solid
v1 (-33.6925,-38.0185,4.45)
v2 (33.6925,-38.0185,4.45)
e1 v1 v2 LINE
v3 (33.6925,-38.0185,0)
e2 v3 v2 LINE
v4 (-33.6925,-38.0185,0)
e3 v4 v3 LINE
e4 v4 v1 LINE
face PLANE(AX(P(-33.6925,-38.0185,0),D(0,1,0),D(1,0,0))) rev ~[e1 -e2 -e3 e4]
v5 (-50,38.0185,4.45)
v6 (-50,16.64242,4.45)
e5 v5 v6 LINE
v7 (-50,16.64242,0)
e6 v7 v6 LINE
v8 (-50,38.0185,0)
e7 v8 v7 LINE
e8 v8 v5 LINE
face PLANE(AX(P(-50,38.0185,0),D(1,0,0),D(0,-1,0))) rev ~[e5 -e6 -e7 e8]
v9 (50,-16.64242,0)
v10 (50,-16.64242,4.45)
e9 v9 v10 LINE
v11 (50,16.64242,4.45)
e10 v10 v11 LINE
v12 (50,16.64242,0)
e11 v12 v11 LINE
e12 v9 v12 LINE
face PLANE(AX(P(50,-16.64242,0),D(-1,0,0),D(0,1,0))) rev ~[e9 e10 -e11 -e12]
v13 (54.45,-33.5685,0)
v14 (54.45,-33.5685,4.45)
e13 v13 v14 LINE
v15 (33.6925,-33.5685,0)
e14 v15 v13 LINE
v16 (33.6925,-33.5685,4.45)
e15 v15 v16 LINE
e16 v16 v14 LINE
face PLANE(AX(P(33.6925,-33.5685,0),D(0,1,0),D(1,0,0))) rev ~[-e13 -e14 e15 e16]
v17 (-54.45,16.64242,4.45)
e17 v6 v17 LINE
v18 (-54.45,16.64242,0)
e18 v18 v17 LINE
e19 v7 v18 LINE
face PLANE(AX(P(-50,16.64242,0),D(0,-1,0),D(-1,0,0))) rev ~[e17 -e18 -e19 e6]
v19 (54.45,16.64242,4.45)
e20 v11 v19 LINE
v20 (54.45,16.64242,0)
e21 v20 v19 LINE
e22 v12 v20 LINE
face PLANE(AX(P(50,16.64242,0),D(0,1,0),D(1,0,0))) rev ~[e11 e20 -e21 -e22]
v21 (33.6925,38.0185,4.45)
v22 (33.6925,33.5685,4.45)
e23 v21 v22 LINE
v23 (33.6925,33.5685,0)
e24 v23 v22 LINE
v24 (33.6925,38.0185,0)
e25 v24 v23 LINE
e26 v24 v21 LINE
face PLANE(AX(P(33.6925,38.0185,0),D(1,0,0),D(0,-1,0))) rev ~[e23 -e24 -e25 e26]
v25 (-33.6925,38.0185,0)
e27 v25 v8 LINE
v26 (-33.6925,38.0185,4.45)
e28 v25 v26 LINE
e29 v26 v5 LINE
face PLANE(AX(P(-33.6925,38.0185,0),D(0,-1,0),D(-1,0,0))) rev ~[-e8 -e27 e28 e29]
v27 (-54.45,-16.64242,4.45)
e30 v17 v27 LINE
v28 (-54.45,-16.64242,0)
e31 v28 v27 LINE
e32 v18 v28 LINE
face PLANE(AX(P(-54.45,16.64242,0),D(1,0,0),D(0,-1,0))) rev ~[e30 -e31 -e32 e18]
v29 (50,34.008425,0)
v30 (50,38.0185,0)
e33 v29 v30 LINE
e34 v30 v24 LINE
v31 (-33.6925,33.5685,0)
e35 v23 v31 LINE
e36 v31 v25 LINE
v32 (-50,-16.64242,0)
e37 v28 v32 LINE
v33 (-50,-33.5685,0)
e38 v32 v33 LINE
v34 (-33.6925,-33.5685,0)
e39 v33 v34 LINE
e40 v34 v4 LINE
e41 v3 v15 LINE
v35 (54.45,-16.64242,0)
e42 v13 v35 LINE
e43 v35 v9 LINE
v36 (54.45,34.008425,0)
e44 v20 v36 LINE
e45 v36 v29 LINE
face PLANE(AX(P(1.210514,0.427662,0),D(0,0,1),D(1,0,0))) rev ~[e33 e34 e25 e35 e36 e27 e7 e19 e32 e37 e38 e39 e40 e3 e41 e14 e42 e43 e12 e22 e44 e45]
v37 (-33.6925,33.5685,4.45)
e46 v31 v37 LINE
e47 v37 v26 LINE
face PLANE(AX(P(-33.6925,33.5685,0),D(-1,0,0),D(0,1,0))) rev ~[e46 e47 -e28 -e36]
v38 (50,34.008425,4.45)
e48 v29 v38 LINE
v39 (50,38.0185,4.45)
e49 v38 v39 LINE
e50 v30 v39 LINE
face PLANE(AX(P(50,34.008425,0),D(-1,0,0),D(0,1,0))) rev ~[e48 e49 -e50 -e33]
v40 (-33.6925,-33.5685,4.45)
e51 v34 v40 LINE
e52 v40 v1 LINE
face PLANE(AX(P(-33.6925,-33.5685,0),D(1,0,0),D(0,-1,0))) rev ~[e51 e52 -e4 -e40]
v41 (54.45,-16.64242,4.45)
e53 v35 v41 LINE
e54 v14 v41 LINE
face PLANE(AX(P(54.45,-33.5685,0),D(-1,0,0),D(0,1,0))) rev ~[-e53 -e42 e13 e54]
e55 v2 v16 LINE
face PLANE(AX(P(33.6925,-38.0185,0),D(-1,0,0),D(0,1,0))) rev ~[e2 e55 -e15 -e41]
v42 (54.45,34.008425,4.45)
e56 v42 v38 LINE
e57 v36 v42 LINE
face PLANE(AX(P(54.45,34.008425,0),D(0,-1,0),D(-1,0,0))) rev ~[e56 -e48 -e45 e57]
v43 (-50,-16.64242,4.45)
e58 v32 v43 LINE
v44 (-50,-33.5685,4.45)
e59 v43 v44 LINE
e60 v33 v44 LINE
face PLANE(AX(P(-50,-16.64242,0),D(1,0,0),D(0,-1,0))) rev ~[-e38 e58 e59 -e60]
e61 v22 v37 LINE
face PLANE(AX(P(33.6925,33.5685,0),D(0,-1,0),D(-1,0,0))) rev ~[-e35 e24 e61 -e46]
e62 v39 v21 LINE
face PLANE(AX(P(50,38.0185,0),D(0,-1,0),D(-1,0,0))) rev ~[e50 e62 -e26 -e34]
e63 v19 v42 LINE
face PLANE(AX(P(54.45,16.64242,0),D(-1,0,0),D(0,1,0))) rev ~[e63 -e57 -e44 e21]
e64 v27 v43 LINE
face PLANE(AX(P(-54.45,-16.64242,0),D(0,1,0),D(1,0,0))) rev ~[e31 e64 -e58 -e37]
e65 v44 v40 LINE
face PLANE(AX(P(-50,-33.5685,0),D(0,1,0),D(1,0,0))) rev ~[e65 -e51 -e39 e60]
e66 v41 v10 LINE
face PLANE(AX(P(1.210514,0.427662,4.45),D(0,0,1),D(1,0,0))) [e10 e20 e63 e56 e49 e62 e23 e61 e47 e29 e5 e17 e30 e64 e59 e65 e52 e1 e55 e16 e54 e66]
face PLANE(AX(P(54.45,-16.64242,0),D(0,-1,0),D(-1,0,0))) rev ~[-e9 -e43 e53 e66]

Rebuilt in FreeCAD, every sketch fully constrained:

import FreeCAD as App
import Part
import Sketcher

V = App.Vector
Q = App.Units.Quantity

doc = App.newDocument("Part")
body = doc.addObject("PartDesign::Body", "Body")

# Sketch on XY plane
sketch1 = body.newObject("Sketcher::SketchObject", "Sketch")
sketch1.AttachmentSupport = (doc.getObject("XY_Plane"), [""])
sketch1.MapMode = "FlatFace"
sketch1.addGeometry([
    Part.LineSegment(V(33.7, -33.6, 0), V(54.5, -33.6, 0)),  # 0
    Part.LineSegment(V(54.5, -33.6, 0), V(54.5, -16.6, 0)),  # 1
    Part.LineSegment(V(54.5, -16.6, 0), V(50, -16.6, 0)),  # 2
    Part.LineSegment(V(50, -16.6, 0), V(50, 16.6, 0)),  # 3
    Part.LineSegment(V(50, 16.6, 0), V(54.5, 16.6, 0)),  # 4
    Part.LineSegment(V(54.5, 16.6, 0), V(54.5, 34, 0)),  # 5
    Part.LineSegment(V(54.5, 34, 0), V(50, 34, 0)),  # 6
    Part.LineSegment(V(50, 34, 0), V(50, 38, 0)),  # 7
    Part.LineSegment(V(50, 38, 0), V(33.7, 38, 0)),  # 8
    Part.LineSegment(V(33.7, 38, 0), V(33.7, 33.6, 0)),  # 9
    Part.LineSegment(V(33.7, 33.6, 0), V(-33.7, 33.6, 0)),  # 10
    Part.LineSegment(V(-33.7, 33.6, 0), V(-33.7, 38, 0)),  # 11
    Part.LineSegment(V(-33.7, 38, 0), V(-50, 38, 0)),  # 12
    Part.LineSegment(V(-50, 38, 0), V(-50, 16.6, 0)),  # 13
    Part.LineSegment(V(-50, 16.6, 0), V(-54.5, 16.6, 0)),  # 14
    Part.LineSegment(V(-54.5, 16.6, 0), V(-54.5, -16.6, 0)),  # 15
    Part.LineSegment(V(-54.5, -16.6, 0), V(-50, -16.6, 0)),  # 16
    Part.LineSegment(V(-50, -16.6, 0), V(-50, -33.6, 0)),  # 17
    Part.LineSegment(V(-50, -33.6, 0), V(-33.7, -33.6, 0)),  # 18
    Part.LineSegment(V(-33.7, -33.6, 0), V(-33.7, -38, 0)),  # 19
    Part.LineSegment(V(-33.7, -38, 0), V(33.7, -38, 0)),  # 20
    Part.LineSegment(V(33.7, -38, 0), V(33.7, -33.6, 0)),  # 21
], False)
sketch1.addConstraint([
    Sketcher.Constraint("Coincident", 0, 2, 1, 1),
    Sketcher.Constraint("Coincident", 1, 2, 2, 1),
    Sketcher.Constraint("Coincident", 2, 2, 3, 1),
    Sketcher.Constraint("Coincident", 3, 2, 4, 1),
    Sketcher.Constraint("Coincident", 4, 2, 5, 1),
    Sketcher.Constraint("Coincident", 5, 2, 6, 1),
    Sketcher.Constraint("Coincident", 6, 2, 7, 1),
    Sketcher.Constraint("Coincident", 7, 2, 8, 1),
    Sketcher.Constraint("Coincident", 8, 2, 9, 1),
    Sketcher.Constraint("Coincident", 9, 2, 10, 1),
    Sketcher.Constraint("Coincident", 10, 2, 11, 1),
    Sketcher.Constraint("Coincident", 11, 2, 12, 1),
    Sketcher.Constraint("Coincident", 12, 2, 13, 1),
    Sketcher.Constraint("Coincident", 13, 2, 14, 1),
    Sketcher.Constraint("Coincident", 14, 2, 15, 1),
    Sketcher.Constraint("Coincident", 15, 2, 16, 1),
    Sketcher.Constraint("Coincident", 16, 2, 17, 1),
    Sketcher.Constraint("Coincident", 17, 2, 18, 1),
    Sketcher.Constraint("Coincident", 18, 2, 19, 1),
    Sketcher.Constraint("Coincident", 19, 2, 20, 1),
    Sketcher.Constraint("Coincident", 20, 2, 21, 1),
    Sketcher.Constraint("Coincident", 21, 2, 0, 1),
    Sketcher.Constraint("Horizontal", 0),
    Sketcher.Constraint("Vertical", 1),
    Sketcher.Constraint("Horizontal", 2),
    Sketcher.Constraint("Vertical", 3),
    Sketcher.Constraint("Horizontal", 4),
    Sketcher.Constraint("Vertical", 5),
    Sketcher.Constraint("Horizontal", 6),
    Sketcher.Constraint("Vertical", 7),
    Sketcher.Constraint("Horizontal", 8),
    Sketcher.Constraint("Vertical", 9),
    Sketcher.Constraint("Horizontal", 10),
    Sketcher.Constraint("Vertical", 11),
    Sketcher.Constraint("Horizontal", 12),
    Sketcher.Constraint("Vertical", 13),
    Sketcher.Constraint("Horizontal", 14),
    Sketcher.Constraint("Vertical", 15),
    Sketcher.Constraint("Horizontal", 16),
    Sketcher.Constraint("Vertical", 17),
    Sketcher.Constraint("Horizontal", 18),
    Sketcher.Constraint("Vertical", 19),
    Sketcher.Constraint("Horizontal", 20),
    Sketcher.Constraint("Vertical", 21),
    Sketcher.Constraint("Symmetric", 2, 2, 13, 2, -1, 1),
    Sketcher.Constraint("Symmetric", 4, 2, 15, 2, -1, 1),
    Sketcher.Constraint("Symmetric", 9, 2, 18, 2, -1, 1),
    Sketcher.Constraint("Symmetric", 11, 2, 20, 2, -1, 1),
    Sketcher.Constraint("Symmetric", 8, 2, 11, 2, -2),
    Sketcher.Constraint("Symmetric", 1, 2, 15, 2, -2),
    Sketcher.Constraint("Horizontal", 0, 2, 17, 2),
    Sketcher.Constraint("Vertical", 3, 2, 6, 2),
    Sketcher.Constraint("Vertical", 13, 2, 16, 2),
    Sketcher.Constraint("Equal", 16, 9),
    Sketcher.Constraint("DistanceX", -1, 1, 2, 2, Q("50 mm")),
    Sketcher.Constraint("DistanceX", 2, 2, 2, 1, Q("4.45 mm")),
    Sketcher.Constraint("DistanceX", 10, 2, 10, 1, Q("67.385 mm")),
    Sketcher.Constraint("DistanceY", 17, 2, 10, 2, Q("67.137 mm")),
    Sketcher.Constraint("DistanceY", 1, 1, 1, 2, Q("16.92608 mm")),
    Sketcher.Constraint("DistanceY", 5, 1, 5, 2, Q("17.366005 mm")),
])
pad1 = body.newObject("PartDesign::Pad", "Pad")
pad1.Profile = sketch1
pad1.Length = 4.45

doc.recompute()
